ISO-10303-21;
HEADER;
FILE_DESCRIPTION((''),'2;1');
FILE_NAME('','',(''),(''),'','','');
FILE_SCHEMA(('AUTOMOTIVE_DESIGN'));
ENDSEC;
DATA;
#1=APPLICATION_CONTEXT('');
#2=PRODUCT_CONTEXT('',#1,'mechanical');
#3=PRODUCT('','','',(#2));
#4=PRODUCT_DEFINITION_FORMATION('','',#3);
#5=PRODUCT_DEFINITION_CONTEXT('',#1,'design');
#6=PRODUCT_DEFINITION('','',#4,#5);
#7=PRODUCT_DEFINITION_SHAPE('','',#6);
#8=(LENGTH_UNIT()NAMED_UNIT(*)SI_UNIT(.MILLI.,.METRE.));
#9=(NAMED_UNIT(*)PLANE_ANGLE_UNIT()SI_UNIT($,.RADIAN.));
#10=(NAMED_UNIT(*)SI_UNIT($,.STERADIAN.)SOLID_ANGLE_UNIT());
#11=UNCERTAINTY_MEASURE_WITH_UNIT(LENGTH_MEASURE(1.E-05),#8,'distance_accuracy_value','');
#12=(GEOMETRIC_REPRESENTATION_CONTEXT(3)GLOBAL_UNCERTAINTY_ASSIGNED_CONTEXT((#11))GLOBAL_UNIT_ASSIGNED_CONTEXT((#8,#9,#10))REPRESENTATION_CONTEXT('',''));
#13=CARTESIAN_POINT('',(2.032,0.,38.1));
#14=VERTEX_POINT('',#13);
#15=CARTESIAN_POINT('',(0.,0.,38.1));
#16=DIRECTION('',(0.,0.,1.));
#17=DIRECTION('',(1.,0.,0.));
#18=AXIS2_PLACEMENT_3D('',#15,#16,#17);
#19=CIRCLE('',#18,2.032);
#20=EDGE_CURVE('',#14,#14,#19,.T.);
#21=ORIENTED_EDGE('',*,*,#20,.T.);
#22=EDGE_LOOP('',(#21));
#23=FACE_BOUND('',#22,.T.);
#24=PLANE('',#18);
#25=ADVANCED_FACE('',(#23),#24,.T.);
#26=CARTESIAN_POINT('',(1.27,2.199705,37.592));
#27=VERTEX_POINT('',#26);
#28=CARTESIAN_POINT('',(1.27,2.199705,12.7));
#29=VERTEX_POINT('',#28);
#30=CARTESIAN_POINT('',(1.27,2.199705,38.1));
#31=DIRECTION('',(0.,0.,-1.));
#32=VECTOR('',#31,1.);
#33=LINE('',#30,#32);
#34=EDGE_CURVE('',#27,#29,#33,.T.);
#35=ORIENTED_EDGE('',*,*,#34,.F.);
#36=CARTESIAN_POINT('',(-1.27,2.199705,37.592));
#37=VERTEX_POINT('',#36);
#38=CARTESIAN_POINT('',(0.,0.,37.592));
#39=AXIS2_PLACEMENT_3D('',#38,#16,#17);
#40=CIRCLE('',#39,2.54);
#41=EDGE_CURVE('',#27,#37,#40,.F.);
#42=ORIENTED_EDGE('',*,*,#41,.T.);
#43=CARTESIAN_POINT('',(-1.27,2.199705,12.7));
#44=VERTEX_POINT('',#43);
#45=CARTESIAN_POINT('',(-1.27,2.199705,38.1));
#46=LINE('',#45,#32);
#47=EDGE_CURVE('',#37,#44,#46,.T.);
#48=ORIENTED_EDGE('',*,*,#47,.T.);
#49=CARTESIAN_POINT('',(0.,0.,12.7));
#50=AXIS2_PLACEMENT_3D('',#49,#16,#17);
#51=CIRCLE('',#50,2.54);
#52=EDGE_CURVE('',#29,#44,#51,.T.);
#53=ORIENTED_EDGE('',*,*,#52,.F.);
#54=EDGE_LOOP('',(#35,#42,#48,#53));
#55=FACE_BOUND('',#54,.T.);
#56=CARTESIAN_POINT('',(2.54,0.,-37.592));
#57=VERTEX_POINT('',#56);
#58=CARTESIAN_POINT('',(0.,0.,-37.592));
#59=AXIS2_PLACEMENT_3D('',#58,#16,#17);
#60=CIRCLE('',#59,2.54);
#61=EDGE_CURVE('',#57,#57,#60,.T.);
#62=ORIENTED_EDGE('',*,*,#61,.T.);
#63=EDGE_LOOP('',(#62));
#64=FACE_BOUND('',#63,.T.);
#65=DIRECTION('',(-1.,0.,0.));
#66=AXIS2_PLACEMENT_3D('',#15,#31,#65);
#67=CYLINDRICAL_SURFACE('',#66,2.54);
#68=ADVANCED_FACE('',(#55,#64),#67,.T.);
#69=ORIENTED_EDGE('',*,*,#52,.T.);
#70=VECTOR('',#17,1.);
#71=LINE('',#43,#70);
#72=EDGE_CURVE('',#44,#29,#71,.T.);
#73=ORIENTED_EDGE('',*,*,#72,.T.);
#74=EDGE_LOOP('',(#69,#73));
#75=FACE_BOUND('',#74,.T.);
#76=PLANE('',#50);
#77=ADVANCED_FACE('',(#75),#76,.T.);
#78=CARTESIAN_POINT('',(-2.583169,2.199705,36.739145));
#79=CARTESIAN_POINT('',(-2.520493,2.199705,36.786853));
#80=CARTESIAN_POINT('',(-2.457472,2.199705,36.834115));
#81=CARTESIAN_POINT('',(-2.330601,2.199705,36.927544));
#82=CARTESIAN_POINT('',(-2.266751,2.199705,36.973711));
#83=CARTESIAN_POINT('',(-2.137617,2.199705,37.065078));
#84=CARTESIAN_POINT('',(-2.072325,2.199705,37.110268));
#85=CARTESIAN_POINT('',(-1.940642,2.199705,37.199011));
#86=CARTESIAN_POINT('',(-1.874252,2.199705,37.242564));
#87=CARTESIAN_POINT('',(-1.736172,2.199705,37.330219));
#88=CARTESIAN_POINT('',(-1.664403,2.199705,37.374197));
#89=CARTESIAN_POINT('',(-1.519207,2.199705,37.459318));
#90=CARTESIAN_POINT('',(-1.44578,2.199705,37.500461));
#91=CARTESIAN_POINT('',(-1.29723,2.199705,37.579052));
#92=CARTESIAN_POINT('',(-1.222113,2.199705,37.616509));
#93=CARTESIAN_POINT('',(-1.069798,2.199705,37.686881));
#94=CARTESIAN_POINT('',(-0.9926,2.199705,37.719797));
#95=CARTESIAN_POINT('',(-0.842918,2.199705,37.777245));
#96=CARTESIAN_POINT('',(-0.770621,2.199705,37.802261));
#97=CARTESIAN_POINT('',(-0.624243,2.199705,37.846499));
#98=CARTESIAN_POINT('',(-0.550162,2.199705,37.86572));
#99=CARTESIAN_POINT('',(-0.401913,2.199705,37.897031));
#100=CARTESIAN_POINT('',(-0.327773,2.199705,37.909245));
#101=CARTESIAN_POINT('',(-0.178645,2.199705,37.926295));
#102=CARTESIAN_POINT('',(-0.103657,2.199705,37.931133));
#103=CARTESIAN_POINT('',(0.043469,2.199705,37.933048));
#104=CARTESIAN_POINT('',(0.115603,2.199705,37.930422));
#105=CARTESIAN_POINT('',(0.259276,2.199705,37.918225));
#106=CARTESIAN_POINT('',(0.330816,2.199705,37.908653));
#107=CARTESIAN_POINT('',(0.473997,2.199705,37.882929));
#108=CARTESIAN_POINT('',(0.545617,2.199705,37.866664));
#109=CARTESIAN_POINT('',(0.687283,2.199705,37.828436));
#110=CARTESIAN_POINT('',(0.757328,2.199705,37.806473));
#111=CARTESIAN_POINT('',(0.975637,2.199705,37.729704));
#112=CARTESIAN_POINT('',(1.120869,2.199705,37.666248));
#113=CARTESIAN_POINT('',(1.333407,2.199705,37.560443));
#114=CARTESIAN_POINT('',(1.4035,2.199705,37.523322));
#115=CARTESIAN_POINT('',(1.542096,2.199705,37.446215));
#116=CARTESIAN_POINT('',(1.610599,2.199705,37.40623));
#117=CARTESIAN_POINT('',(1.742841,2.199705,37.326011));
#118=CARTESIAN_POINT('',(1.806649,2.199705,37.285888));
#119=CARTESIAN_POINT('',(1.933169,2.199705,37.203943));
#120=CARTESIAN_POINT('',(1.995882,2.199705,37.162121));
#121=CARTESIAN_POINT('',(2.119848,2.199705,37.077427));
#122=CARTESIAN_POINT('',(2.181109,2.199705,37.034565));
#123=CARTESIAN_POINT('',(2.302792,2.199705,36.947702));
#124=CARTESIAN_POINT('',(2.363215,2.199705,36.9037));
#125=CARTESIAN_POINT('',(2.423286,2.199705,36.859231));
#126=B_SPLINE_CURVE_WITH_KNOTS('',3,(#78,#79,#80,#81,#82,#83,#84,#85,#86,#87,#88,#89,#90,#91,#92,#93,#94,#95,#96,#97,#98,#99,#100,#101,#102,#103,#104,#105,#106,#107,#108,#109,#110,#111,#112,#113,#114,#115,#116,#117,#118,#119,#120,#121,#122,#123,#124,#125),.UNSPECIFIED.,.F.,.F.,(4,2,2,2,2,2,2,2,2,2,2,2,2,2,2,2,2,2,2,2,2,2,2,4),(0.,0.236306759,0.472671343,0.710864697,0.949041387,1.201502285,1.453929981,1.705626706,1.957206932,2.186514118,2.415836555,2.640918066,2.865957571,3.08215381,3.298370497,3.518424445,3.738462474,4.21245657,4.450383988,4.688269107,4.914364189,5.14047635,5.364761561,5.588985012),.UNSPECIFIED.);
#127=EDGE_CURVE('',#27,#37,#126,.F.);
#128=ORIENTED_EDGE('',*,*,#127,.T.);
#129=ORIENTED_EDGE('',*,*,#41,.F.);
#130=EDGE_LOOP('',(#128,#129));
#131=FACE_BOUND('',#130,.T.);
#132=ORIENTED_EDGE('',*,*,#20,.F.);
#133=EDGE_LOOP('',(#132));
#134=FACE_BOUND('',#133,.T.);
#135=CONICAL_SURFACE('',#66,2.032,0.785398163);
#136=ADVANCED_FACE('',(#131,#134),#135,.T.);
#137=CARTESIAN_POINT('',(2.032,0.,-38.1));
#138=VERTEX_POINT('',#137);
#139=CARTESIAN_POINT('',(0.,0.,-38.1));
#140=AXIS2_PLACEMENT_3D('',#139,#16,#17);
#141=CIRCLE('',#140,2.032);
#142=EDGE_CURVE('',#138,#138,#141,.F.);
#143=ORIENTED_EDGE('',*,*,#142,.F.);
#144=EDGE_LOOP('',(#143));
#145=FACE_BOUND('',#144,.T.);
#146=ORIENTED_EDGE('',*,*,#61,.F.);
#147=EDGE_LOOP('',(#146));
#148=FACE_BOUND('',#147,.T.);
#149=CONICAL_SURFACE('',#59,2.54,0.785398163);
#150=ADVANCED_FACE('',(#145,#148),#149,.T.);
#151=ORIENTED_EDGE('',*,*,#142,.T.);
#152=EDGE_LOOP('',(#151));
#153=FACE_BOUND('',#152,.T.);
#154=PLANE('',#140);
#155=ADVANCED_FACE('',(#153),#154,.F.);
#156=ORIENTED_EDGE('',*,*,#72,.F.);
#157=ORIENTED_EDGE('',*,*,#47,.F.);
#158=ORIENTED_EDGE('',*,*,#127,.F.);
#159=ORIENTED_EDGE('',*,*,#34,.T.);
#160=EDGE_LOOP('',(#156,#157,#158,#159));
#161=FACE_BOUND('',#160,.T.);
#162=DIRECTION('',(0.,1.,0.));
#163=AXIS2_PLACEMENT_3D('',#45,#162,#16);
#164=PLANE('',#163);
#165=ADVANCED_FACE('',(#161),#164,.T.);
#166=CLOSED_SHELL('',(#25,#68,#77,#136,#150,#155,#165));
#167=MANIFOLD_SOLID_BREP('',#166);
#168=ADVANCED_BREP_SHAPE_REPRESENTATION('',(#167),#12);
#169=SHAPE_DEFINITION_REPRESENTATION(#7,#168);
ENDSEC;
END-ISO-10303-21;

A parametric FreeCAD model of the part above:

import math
import FreeCAD as App
import Part
import Sketcher
Q = App.Units.Quantity


def edges_at(feature, points):
    """Names of the edges that pass closest to the given points."""
    edges = feature.Shape.Edges
    near = lambda p: min(range(len(edges)), key=lambda i: edges[i].distToShape(Part.Vertex(*p))[0])
    return sorted({f"Edge{near(p) + 1}" for p in points})

doc = App.newDocument("Part")
body = doc.addObject("PartDesign::Body", "Body")

# Sketch on XY plane
sketch1 = body.newObject("Sketcher::SketchObject", "Sketch")
sketch1.AttachmentSupport = (doc.getObject("XY_Plane"), [""])
sketch1.MapMode = "FlatFace"
sketch1.addGeometry(Part.Circle(App.Vector(0, 0, 0), App.Vector(0, 0, 1), 2.5), False)
sketch1.addConstraint(Sketcher.Constraint("Coincident", 0, 3, -1, 1))
sketch1.addConstraint(Sketcher.Constraint("Diameter", 0, Q("0.2 in")))
pad1 = body.newObject("PartDesign::Pad", "Pad")
pad1.Profile = sketch1
pad1.Length = Q("3 in")
pad1.Midplane = True
doc.recompute()

chamfer = body.newObject("PartDesign::Chamfer", "Chamfer")
chamfer.Base = (pad1, edges_at(pad1, [(-2.54, 0, -38.1), (-2.54, 0, 38.1)]))
chamfer.Size = Q("0.02 in")

# Sketch on XY plane
sketch2 = body.newObject("Sketcher::SketchObject", "Sketch001")
sketch2.AttachmentSupport = (doc.getObject("XY_Plane"), [""])
sketch2.MapMode = "FlatFace"
sketch2.AttachmentOffset = App.Placement(App.Vector(0, 0, 0.5 * 25.4), App.Rotation())
sketch2.addGeometry(Part.LineSegment(App.Vector(-1.3, 2.2, 0), App.Vector(1.3, 2.2, 0)), False)
sketch2.addGeometry(Part.ArcOfCircle(Part.Circle(App.Vector(0, 0, 0), App.Vector(0, 0, 1), 2.5), math.radians(60), math.radians(120)), False)
sketch2.addConstraint(Sketcher.Constraint("Coincident", 0, 1, 1, 2))
sketch2.addConstraint(Sketcher.Constraint("Coincident", 1, 1, 0, 2))
sketch2.addConstraint(Sketcher.Constraint("Horizontal", 0))
sketch2.addConstraint(Sketcher.Constraint("Coincident", 1, 3, -1, 1))
sketch2.addConstraint(Sketcher.Constraint("Radius", 1, Q("0.1 in")))
sketch2.addConstraint(Sketcher.Constraint("DistanceX", 0, 1, 0, 2, Q("0.1 in")))
pocket1 = body.newObject("PartDesign::Pocket", "Pocket")
pocket1.Profile = sketch2
pocket1.Type = "ThroughAll"
pocket1.Reversed = True

doc.recompute()
